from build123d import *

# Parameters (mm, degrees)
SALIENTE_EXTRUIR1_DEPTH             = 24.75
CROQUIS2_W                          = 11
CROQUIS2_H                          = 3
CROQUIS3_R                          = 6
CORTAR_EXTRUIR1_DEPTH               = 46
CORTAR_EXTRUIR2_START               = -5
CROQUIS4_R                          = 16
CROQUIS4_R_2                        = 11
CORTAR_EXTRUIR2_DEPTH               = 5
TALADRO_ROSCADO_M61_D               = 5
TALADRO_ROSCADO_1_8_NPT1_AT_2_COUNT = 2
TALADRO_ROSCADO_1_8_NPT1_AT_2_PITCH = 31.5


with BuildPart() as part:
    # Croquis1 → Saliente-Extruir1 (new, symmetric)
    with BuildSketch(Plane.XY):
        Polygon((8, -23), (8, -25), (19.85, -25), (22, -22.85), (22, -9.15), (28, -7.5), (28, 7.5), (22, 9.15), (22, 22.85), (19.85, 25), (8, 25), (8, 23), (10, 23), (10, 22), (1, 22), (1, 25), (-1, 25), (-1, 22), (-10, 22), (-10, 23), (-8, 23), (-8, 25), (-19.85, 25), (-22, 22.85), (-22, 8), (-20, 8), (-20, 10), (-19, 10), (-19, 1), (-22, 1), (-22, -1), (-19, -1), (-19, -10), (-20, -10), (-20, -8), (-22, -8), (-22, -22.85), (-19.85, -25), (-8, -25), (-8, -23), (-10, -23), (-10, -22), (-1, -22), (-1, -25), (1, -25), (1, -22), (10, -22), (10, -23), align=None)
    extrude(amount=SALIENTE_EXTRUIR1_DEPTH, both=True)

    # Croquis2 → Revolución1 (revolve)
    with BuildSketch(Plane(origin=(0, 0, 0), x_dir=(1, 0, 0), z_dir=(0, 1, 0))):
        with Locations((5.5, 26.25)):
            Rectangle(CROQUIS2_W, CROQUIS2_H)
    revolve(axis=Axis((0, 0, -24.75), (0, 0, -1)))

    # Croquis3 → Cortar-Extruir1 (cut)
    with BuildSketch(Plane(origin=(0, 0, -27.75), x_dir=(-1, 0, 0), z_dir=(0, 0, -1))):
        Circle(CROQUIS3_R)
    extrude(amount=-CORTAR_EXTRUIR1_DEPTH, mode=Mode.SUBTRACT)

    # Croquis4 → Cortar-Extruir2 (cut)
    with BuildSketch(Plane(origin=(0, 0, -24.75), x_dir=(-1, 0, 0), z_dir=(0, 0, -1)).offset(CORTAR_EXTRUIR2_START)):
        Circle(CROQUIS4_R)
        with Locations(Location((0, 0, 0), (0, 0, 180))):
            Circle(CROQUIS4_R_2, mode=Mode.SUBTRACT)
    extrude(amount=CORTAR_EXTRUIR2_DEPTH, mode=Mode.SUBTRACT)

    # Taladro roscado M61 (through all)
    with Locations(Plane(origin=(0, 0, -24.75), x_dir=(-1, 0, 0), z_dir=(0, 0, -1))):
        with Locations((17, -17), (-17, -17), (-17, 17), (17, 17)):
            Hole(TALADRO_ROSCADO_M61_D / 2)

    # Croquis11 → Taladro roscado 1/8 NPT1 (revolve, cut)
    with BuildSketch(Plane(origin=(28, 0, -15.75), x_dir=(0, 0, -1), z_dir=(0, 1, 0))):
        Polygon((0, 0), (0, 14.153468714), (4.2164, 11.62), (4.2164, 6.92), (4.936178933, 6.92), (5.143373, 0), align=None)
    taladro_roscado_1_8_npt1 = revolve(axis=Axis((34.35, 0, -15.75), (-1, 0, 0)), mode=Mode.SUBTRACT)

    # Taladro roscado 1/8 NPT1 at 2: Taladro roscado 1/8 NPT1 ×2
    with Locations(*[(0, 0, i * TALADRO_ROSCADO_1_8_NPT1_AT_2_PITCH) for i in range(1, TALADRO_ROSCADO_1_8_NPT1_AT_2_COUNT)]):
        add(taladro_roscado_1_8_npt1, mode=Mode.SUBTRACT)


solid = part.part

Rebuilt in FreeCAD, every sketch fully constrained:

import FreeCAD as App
import Part
import Sketcher

V = App.Vector
Q = App.Units.Quantity


def add_polygon(sketch, points):
    """Adds a closed chain of lines whose ends are joined by coincident constraints."""
    first, n = sketch.GeometryCount, len(points)
    for a, b in zip(points, points[1:] + points[:1]):
        sketch.addGeometry(Part.LineSegment(App.Vector(*a, 0), App.Vector(*b, 0)), False)
    for i in range(n):
        sketch.addConstraint(Sketcher.Constraint("Coincident", first + i, 2, first + (i + 1) % n, 1))

doc = App.newDocument("Part")
body = doc.addObject("PartDesign::Body", "Body")

# Sketch on XY plane
sketch1 = body.newObject("Sketcher::SketchObject", "Sketch")
sketch1.AttachmentSupport = (doc.getObject("XY_Plane"), [""])
sketch1.MapMode = "FlatFace"
add_polygon(sketch1, [(8, -23), (8, -25), (19.9, -25), (22, -22.9), (22, -9.2), (28, -7.5), (28, 7.5), (22, 9.2), (22, 22.9), (19.9, 25), (8, 25), (8, 23), (10, 23), (10, 22), (1, 22), (1, 25), (-1, 25), (-1, 22), (-10, 22), (-10, 23), (-8, 23), (-8, 25), (-19.9, 25), (-22, 22.9), (-22, 8), (-20, 8), (-20, 10), (-19, 10), (-19, 1), (-22, 1), (-22, -1), (-19, -1), (-19, -10), (-20, -10), (-20, -8), (-22, -8), (-22, -22.9), (-19.9, -25), (-8, -25), (-8, -23), (-10, -23), (-10, -22), (-1, -22), (-1, -25), (1, -25), (1, -22), (10, -22), (10, -23)])  # lines 0-47
sketch1.addConstraint(Sketcher.Constraint("Vertical", 0))
sketch1.addConstraint(Sketcher.Constraint("Horizontal", 1))
sketch1.addConstraint(Sketcher.Constraint("Vertical", 3))
sketch1.addConstraint(Sketcher.Constraint("Vertical", 5))
sketch1.addConstraint(Sketcher.Constraint("Vertical", 7))
sketch1.addConstraint(Sketcher.Constraint("Horizontal", 9))
sketch1.addConstraint(Sketcher.Constraint("Vertical", 10))
sketch1.addConstraint(Sketcher.Constraint("Horizontal", 11))
sketch1.addConstraint(Sketcher.Constraint("Vertical", 12))
sketch1.addConstraint(Sketcher.Constraint("Horizontal", 13))
sketch1.addConstraint(Sketcher.Constraint("Vertical", 14))
sketch1.addConstraint(Sketcher.Constraint("Horizontal", 15))
sketch1.addConstraint(Sketcher.Constraint("Vertical", 16))
sketch1.addConstraint(Sketcher.Constraint("Horizontal", 17))
sketch1.addConstraint(Sketcher.Constraint("Vertical", 18))
sketch1.addConstraint(Sketcher.Constraint("Horizontal", 19))
sketch1.addConstraint(Sketcher.Constraint("Vertical", 20))
sketch1.addConstraint(Sketcher.Constraint("Horizontal", 21))
sketch1.addConstraint(Sketcher.Constraint("Vertical", 23))
sketch1.addConstraint(Sketcher.Constraint("Horizontal", 24))
sketch1.addConstraint(Sketcher.Constraint("Vertical", 25))
sketch1.addConstraint(Sketcher.Constraint("Horizontal", 26))
sketch1.addConstraint(Sketcher.Constraint("Vertical", 27))
sketch1.addConstraint(Sketcher.Constraint("Horizontal", 28))
sketch1.addConstraint(Sketcher.Constraint("Vertical", 29))
sketch1.addConstraint(Sketcher.Constraint("Horizontal", 30))
sketch1.addConstraint(Sketcher.Constraint("Vertical", 31))
sketch1.addConstraint(Sketcher.Constraint("Horizontal", 32))
sketch1.addConstraint(Sketcher.Constraint("Vertical", 33))
sketch1.addConstraint(Sketcher.Constraint("Horizontal", 34))
sketch1.addConstraint(Sketcher.Constraint("Vertical", 35))
sketch1.addConstraint(Sketcher.Constraint("Horizontal", 37))
sketch1.addConstraint(Sketcher.Constraint("Vertical", 38))
sketch1.addConstraint(Sketcher.Constraint("Horizontal", 39))
sketch1.addConstraint(Sketcher.Constraint("Vertical", 40))
sketch1.addConstraint(Sketcher.Constraint("Horizontal", 41))
sketch1.addConstraint(Sketcher.Constraint("Vertical", 42))
sketch1.addConstraint(Sketcher.Constraint("Horizontal", 43))
sketch1.addConstraint(Sketcher.Constraint("Vertical", 44))
sketch1.addConstraint(Sketcher.Constraint("Horizontal", 45))
sketch1.addConstraint(Sketcher.Constraint("Vertical", 46))
sketch1.addConstraint(Sketcher.Constraint("Horizontal", 47))
sketch1.addConstraint(Sketcher.Constraint("Symmetric", 0, 2, 20, 2, -1, 1))
sketch1.addConstraint(Sketcher.Constraint("Symmetric", 2, 2, 22, 2, -1, 1))
sketch1.addConstraint(Sketcher.Constraint("Symmetric", 7, 2, 35, 2, -1, 1))
sketch1.addConstraint(Sketcher.Constraint("Symmetric", 8, 2, 36, 2, -1, 1))
sketch1.addConstraint(Sketcher.Constraint("Symmetric", 10, 2, 38, 2, -1, 1))
sketch1.addConstraint(Sketcher.Constraint("Symmetric", 12, 2, 40, 2, -1, 1))
sketch1.addConstraint(Sketcher.Constraint("Symmetric", 14, 2, 42, 2, -1, 1))
sketch1.addConstraint(Sketcher.Constraint("Symmetric", 16, 2, 44, 2, -1, 1))
sketch1.addConstraint(Sketcher.Constraint("Symmetric", 18, 2, 46, 2, -1, 1))
sketch1.addConstraint(Sketcher.Constraint("Symmetric", 13, 2, 16, 2, -2))
sketch1.addConstraint(Sketcher.Constraint("Symmetric", 11, 2, 18, 2, -2))
sketch1.addConstraint(Sketcher.Constraint("Symmetric", 9, 2, 20, 2, -2))
sketch1.addConstraint(Sketcher.Constraint("Symmetric", 7, 2, 22, 2, -2))
sketch1.addConstraint(Sketcher.Constraint("Symmetric", 27, 2, 30, 2, -1))
sketch1.addConstraint(Sketcher.Constraint("Symmetric", 25, 2, 32, 2, -1))
sketch1.addConstraint(Sketcher.Constraint("Perpendicular", 2, 8))
sketch1.addConstraint(Sketcher.Constraint("Perpendicular", 8, 22))
sketch1.addConstraint(Sketcher.Constraint("Horizontal", 9, 2, 14, 2))
sketch1.addConstraint(Sketcher.Constraint("Vertical", 1, 2, 8, 2))
sketch1.addConstraint(Sketcher.Constraint("Vertical", 23, 2, 28, 2))
sketch1.addConstraint(Sketcher.Constraint("Equal", 11, 15))
sketch1.addConstraint(Sketcher.Constraint("Equal", 19, 24))
sketch1.addConstraint(Sketcher.Constraint("Equal", 47, 0))
sketch1.addConstraint(Sketcher.Constraint("Equal", 3, 7))
sketch1.addConstraint(Sketcher.Constraint("Equal", 32, 12))
sketch1.addConstraint(Sketcher.Constraint("Equal", 20, 25))
sketch1.addConstraint(Sketcher.Constraint("Equal", 45, 27))
sketch1.addConstraint(Sketcher.Constraint("Equal", 25, 29))
sketch1.addConstraint(Sketcher.Constraint("Equal", 29, 33))
sketch1.addConstraint(Sketcher.Constraint("Equal", 4, 6))
sketch1.addConstraint(Sketcher.Constraint("DistanceX", 11, 1, 11, 2, Q("2 mm")))
sketch1.addConstraint(Sketcher.Constraint("DistanceX", 13, 2, 13, 1, Q("9 mm")))
sketch1.addConstraint(Sketcher.Constraint("DistanceX", 26, 1, 26, 2, Q("1 mm")))
sketch1.addConstraint(Sketcher.Constraint("DistanceY", 5, 1, 5, 2, Q("15 mm")))
sketch1.addConstraint(Sketcher.Constraint("DistanceY", 3, 1, 3, 2, Q("13.7 mm")))
sketch1.addConstraint(Sketcher.Constraint("DistanceY", 0, 2, -1, 1, Q("25 mm")))
sketch1.addConstraint(Sketcher.Constraint("DistanceX", -1, 1, 2, 2, Q("22 mm")))
sketch1.addConstraint(Sketcher.Constraint("DistanceX", -1, 1, 4, 2, Q("28 mm")))
sketch1.addConstraint(Sketcher.Constraint("DistanceY", 2, 2, 6, 2, Q("32 mm")))
pad1 = body.newObject("PartDesign::Pad", "Pad")
pad1.Profile = sketch1
pad1.Length = 49.5
pad1.Midplane = True

# Sketch on XZ plane
sketch2 = body.newObject("Sketcher::SketchObject", "Sketch001")
sketch2.AttachmentSupport = (doc.getObject("XZ_Plane"), [""])
sketch2.MapMode = "FlatFace"
add_polygon(sketch2, [(0, -27.8), (0, -24.8), (11, -24.8), (11, -27.8)])  # lines 0-3
sketch2.addConstraint(Sketcher.Constraint("Vertical", 0))
sketch2.addConstraint(Sketcher.Constraint("Horizontal", 1))
sketch2.addConstraint(Sketcher.Constraint("Vertical", 2))
sketch2.addConstraint(Sketcher.Constraint("Horizontal", 3))
sketch2.addConstraint(Sketcher.Constraint("PointOnObject", 0, 2, -2))
sketch2.addConstraint(Sketcher.Constraint("DistanceX", 1, 1, 1, 2, Q("11 mm")))
sketch2.addConstraint(Sketcher.Constraint("DistanceY", 0, 1, 0, 2, Q("3 mm")))
sketch2.addConstraint(Sketcher.Constraint("DistanceY", 0, 2, -1, 1, Q("24.75 mm")))
revolution = body.newObject("PartDesign::Revolution", "Revolution")
revolution.Profile = sketch2
revolution.ReferenceAxis = (sketch2, ["V_Axis"])
revolution.Angle = 360

# Sketch on XY plane
sketch3 = body.newObject("Sketcher::SketchObject", "Sketch002")
sketch3.AttachmentSupport = (doc.getObject("XY_Plane"), [""])
sketch3.MapMode = "FlatFace"
sketch3.AttachmentOffset = App.Placement(V(0, 0, -27.75), App.Rotation())
sketch3.addGeometry(Part.Circle(V(0, 0, 0), V(0, 0, 1), 6), False)
sketch3.addConstraint(Sketcher.Constraint("Coincident", 0, 3, -1, 1))
sketch3.addConstraint(Sketcher.Constraint("Diameter", 0, Q("12 mm")))
pocket1 = body.newObject("PartDesign::Pocket", "Pocket")
pocket1.Profile = sketch3
pocket1.Length = 46
pocket1.Reversed = True

# Sketch on XY plane
sketch4 = body.newObject("Sketcher::SketchObject", "Sketch003")
sketch4.AttachmentSupport = (doc.getObject("XY_Plane"), [""])
sketch4.MapMode = "FlatFace"
sketch4.AttachmentOffset = App.Placement(V(0, 0, -19.75), App.Rotation())
sketch4.addGeometry(Part.Circle(V(0, 0, 0), V(0, 0, 1), 16), False)
sketch4.addGeometry(Part.Circle(V(0, 0, 0), V(0, 0, 1), 11), False)
sketch4.addConstraint(Sketcher.Constraint("Coincident", 0, 3, -1, 1))
sketch4.addConstraint(Sketcher.Constraint("Coincident", 1, 3, -1, 1))
sketch4.addConstraint(Sketcher.Constraint("Diameter", 0, Q("32 mm")))
sketch4.addConstraint(Sketcher.Constraint("Diameter", 1, Q("22 mm")))
pocket2 = body.newObject("PartDesign::Pocket", "Pocket001")
pocket2.Profile = sketch4
pocket2.Length = 5

# Sketch on XY plane
sketch5 = body.newObject("Sketcher::SketchObject", "Sketch004")
sketch5.AttachmentSupport = (doc.getObject("XY_Plane"), [""])
sketch5.MapMode = "FlatFace"
sketch5.AttachmentOffset = App.Placement(V(0, 0, -24.75), App.Rotation())
sketch5.addGeometry(Part.Circle(V(-17, -17, 0), V(0, 0, 1), 2.5), False)
sketch5.addGeometry(Part.Circle(V(17, -17, 0), V(0, 0, 1), 2.5), False)
sketch5.addGeometry(Part.Circle(V(17, 17, 0), V(0, 0, 1), 2.5), False)
sketch5.addGeometry(Part.Circle(V(-17, 17, 0), V(0, 0, 1), 2.5), False)
sketch5.addConstraint(Sketcher.Constraint("Equal", 0, 1))
sketch5.addConstraint(Sketcher.Constraint("Equal", 1, 2))
sketch5.addConstraint(Sketcher.Constraint("Equal", 2, 3))
sketch5.addConstraint(Sketcher.Constraint("Symmetric", 0, 3, 2, 3, -1, 1))
sketch5.addConstraint(Sketcher.Constraint("Symmetric", 1, 3, 3, 3, -1, 1))
sketch5.addConstraint(Sketcher.Constraint("Symmetric", 0, 3, 1, 3, -2))
sketch5.addConstraint(Sketcher.Constraint("Diameter", 0, Q("5 mm")))
sketch5.addConstraint(Sketcher.Constraint("DistanceX", 0, 3, -1, 1, Q("17 mm")))
sketch5.addConstraint(Sketcher.Constraint("DistanceY", 0, 3, -1, 1, Q("17 mm")))
doc.recompute()
hole = body.newObject("PartDesign::Hole", "Hole")
hole.Profile = sketch5
hole.ThreadType = "None"
hole.Diameter = 5
hole.DepthType = "ThroughAll"
hole.Reversed = True

# Sketch on XZ plane
sketch6 = body.newObject("Sketcher::SketchObject", "Sketch005")
sketch6.AttachmentSupport = (doc.getObject("XZ_Plane"), [""])
sketch6.MapMode = "FlatFace"
add_polygon(sketch6, [(13.8, -15.8), (28, -15.8), (28, -20.9), (21.1, -20.7), (21.1, -20), (16.4, -20)])  # lines 0-5
sketch6.addGeometry(Part.LineSegment(V(28, -15.8, 0), V(13.8, -15.8, 0)), True)  # axis
sketch6.addConstraint(Sketcher.Constraint("Horizontal", 0))
sketch6.addConstraint(Sketcher.Constraint("Vertical", 1))
sketch6.addConstraint(Sketcher.Constraint("Vertical", 3))
sketch6.addConstraint(Sketcher.Constraint("Horizontal", 4))
sketch6.addConstraint(Sketcher.Constraint("Horizontal", 6))
sketch6.addConstraint(Sketcher.Constraint("Coincident", 6, 1, 0, 2))
sketch6.addConstraint(Sketcher.Constraint("Equal", 0, 6))
sketch6.addConstraint(Sketcher.Constraint("Angle", 5, Q("121 deg")))
sketch6.addConstraint(Sketcher.Constraint("DistanceX", 4, 2, 4, 1, Q("4.7 mm")))
sketch6.addConstraint(Sketcher.Constraint("DistanceX", -1, 1, 0, 2, Q("28 mm")))
sketch6.addConstraint(Sketcher.Constraint("DistanceY", 0, 2, -1, 1, Q("15.75 mm")))
sketch6.addConstraint(Sketcher.Constraint("DistanceX", -1, 1, 2, 2, Q("21.08 mm")))
sketch6.addConstraint(Sketcher.Constraint("Distance", 2, Q("6.923101 mm")))
sketch6.addConstraint(Sketcher.Constraint("DistanceX", 0, 1, 0, 2, Q("14.153469 mm")))
sketch6.addConstraint(Sketcher.Constraint("DistanceY", 3, 1, 3, 2, Q("0.719779 mm")))
groove = body.newObject("PartDesign::Groove", "Groove")
groove.Profile = sketch6
groove.ReferenceAxis = (sketch6, ["Axis0"])
groove.Angle = 360
doc.recompute()

linearpattern = body.newObject("PartDesign::LinearPattern", "LinearPattern")
linearpattern.Originals = [groove]
linearpattern.Direction = (doc.getObject("Z_Axis"), [""])
linearpattern.Mode = "offset"
linearpattern.Offset = 31.5
linearpattern.Occurrences = 2
body.Tip = linearpattern

doc.recompute()
